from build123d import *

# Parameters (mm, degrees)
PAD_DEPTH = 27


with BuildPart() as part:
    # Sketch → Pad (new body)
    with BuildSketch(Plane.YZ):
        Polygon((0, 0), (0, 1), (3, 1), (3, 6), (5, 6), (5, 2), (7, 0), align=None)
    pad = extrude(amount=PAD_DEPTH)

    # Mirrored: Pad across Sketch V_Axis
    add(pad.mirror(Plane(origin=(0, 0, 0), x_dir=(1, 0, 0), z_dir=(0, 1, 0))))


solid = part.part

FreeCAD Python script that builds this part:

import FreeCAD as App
import Part
import Sketcher

V = App.Vector
Q = App.Units.Quantity

doc = App.newDocument("Part")
body = doc.addObject("PartDesign::Body", "Body")

# Sketch on YZ plane
sketch1 = doc.addObject("Sketcher::SketchObject", "Sketch")
body.addObject(sketch1)
sketch1.AttachmentSupport = (doc.YZ_Plane, [""])
sketch1.MapMode = "FlatFace"
sketch1.addGeometry(Part.LineSegment(V(0, 1, 0), V(0, 0, 0)), False)
sketch1.addGeometry(Part.LineSegment(V(0, 0, 0), V(7, 0, 0)), False)
sketch1.addGeometry(Part.LineSegment(V(7, 0, 0), V(5, 2, 0)), False)
sketch1.addGeometry(Part.LineSegment(V(5, 2, 0), V(5, 6, 0)), False)
sketch1.addGeometry(Part.LineSegment(V(5, 6, 0), V(3, 6, 0)), False)
sketch1.addGeometry(Part.LineSegment(V(3, 6, 0), V(3, 1, 0)), False)
sketch1.addGeometry(Part.LineSegment(V(3, 1, 0), V(0, 1, 0)), False)
sketch1.addConstraint(Sketcher.Constraint("Coincident", 0, 2, 1, 1))
sketch1.addConstraint(Sketcher.Constraint("Coincident", 1, 2, 2, 1))
sketch1.addConstraint(Sketcher.Constraint("Coincident", 2, 2, 3, 1))
sketch1.addConstraint(Sketcher.Constraint("Coincident", 3, 2, 4, 1))
sketch1.addConstraint(Sketcher.Constraint("Coincident", 4, 2, 5, 1))
sketch1.addConstraint(Sketcher.Constraint("Coincident", 5, 2, 6, 1))
sketch1.addConstraint(Sketcher.Constraint("Coincident", 6, 2, 0, 1))
sketch1.addConstraint(Sketcher.Constraint("Vertical", 0))
sketch1.addConstraint(Sketcher.Constraint("Horizontal", 1))
sketch1.addConstraint(Sketcher.Constraint("Vertical", 3))
sketch1.addConstraint(Sketcher.Constraint("Horizontal", 4))
sketch1.addConstraint(Sketcher.Constraint("Vertical", 5))
sketch1.addConstraint(Sketcher.Constraint("Horizontal", 6))
sketch1.addConstraint(Sketcher.Constraint("Coincident", 0, 2, -1, 1))
sketch1.addConstraint(Sketcher.Constraint("DistanceX", 1, 1, 1, 2, Q("7 mm")))
sketch1.addConstraint(Sketcher.Constraint("DistanceX", 4, 2, 4, 1, Q("2 mm")))
sketch1.addConstraint(Sketcher.Constraint("DistanceX", 6, 2, 6, 1, Q("3 mm")))
sketch1.addConstraint(Sketcher.Constraint("DistanceY", 0, 2, 0, 1, Q("1 mm")))
sketch1.addConstraint(Sketcher.Constraint("DistanceY", 3, 1, 3, 2, Q("4 mm")))
sketch1.addConstraint(Sketcher.Constraint("DistanceY", 5, 2, 5, 1, Q("5 mm")))
pad1 = doc.addObject("PartDesign::Pad", "Pad")
body.addObject(pad1)
pad1.Profile = sketch1
pad1.Length = 27
doc.recompute()

mirrored = doc.addObject("PartDesign::Mirrored", "Mirrored")
body.addObject(mirrored)
mirrored.Originals = [pad1]
mirrored.MirrorPlane = (doc.XZ_Plane, [""])
body.Tip = mirrored

doc.recompute()
